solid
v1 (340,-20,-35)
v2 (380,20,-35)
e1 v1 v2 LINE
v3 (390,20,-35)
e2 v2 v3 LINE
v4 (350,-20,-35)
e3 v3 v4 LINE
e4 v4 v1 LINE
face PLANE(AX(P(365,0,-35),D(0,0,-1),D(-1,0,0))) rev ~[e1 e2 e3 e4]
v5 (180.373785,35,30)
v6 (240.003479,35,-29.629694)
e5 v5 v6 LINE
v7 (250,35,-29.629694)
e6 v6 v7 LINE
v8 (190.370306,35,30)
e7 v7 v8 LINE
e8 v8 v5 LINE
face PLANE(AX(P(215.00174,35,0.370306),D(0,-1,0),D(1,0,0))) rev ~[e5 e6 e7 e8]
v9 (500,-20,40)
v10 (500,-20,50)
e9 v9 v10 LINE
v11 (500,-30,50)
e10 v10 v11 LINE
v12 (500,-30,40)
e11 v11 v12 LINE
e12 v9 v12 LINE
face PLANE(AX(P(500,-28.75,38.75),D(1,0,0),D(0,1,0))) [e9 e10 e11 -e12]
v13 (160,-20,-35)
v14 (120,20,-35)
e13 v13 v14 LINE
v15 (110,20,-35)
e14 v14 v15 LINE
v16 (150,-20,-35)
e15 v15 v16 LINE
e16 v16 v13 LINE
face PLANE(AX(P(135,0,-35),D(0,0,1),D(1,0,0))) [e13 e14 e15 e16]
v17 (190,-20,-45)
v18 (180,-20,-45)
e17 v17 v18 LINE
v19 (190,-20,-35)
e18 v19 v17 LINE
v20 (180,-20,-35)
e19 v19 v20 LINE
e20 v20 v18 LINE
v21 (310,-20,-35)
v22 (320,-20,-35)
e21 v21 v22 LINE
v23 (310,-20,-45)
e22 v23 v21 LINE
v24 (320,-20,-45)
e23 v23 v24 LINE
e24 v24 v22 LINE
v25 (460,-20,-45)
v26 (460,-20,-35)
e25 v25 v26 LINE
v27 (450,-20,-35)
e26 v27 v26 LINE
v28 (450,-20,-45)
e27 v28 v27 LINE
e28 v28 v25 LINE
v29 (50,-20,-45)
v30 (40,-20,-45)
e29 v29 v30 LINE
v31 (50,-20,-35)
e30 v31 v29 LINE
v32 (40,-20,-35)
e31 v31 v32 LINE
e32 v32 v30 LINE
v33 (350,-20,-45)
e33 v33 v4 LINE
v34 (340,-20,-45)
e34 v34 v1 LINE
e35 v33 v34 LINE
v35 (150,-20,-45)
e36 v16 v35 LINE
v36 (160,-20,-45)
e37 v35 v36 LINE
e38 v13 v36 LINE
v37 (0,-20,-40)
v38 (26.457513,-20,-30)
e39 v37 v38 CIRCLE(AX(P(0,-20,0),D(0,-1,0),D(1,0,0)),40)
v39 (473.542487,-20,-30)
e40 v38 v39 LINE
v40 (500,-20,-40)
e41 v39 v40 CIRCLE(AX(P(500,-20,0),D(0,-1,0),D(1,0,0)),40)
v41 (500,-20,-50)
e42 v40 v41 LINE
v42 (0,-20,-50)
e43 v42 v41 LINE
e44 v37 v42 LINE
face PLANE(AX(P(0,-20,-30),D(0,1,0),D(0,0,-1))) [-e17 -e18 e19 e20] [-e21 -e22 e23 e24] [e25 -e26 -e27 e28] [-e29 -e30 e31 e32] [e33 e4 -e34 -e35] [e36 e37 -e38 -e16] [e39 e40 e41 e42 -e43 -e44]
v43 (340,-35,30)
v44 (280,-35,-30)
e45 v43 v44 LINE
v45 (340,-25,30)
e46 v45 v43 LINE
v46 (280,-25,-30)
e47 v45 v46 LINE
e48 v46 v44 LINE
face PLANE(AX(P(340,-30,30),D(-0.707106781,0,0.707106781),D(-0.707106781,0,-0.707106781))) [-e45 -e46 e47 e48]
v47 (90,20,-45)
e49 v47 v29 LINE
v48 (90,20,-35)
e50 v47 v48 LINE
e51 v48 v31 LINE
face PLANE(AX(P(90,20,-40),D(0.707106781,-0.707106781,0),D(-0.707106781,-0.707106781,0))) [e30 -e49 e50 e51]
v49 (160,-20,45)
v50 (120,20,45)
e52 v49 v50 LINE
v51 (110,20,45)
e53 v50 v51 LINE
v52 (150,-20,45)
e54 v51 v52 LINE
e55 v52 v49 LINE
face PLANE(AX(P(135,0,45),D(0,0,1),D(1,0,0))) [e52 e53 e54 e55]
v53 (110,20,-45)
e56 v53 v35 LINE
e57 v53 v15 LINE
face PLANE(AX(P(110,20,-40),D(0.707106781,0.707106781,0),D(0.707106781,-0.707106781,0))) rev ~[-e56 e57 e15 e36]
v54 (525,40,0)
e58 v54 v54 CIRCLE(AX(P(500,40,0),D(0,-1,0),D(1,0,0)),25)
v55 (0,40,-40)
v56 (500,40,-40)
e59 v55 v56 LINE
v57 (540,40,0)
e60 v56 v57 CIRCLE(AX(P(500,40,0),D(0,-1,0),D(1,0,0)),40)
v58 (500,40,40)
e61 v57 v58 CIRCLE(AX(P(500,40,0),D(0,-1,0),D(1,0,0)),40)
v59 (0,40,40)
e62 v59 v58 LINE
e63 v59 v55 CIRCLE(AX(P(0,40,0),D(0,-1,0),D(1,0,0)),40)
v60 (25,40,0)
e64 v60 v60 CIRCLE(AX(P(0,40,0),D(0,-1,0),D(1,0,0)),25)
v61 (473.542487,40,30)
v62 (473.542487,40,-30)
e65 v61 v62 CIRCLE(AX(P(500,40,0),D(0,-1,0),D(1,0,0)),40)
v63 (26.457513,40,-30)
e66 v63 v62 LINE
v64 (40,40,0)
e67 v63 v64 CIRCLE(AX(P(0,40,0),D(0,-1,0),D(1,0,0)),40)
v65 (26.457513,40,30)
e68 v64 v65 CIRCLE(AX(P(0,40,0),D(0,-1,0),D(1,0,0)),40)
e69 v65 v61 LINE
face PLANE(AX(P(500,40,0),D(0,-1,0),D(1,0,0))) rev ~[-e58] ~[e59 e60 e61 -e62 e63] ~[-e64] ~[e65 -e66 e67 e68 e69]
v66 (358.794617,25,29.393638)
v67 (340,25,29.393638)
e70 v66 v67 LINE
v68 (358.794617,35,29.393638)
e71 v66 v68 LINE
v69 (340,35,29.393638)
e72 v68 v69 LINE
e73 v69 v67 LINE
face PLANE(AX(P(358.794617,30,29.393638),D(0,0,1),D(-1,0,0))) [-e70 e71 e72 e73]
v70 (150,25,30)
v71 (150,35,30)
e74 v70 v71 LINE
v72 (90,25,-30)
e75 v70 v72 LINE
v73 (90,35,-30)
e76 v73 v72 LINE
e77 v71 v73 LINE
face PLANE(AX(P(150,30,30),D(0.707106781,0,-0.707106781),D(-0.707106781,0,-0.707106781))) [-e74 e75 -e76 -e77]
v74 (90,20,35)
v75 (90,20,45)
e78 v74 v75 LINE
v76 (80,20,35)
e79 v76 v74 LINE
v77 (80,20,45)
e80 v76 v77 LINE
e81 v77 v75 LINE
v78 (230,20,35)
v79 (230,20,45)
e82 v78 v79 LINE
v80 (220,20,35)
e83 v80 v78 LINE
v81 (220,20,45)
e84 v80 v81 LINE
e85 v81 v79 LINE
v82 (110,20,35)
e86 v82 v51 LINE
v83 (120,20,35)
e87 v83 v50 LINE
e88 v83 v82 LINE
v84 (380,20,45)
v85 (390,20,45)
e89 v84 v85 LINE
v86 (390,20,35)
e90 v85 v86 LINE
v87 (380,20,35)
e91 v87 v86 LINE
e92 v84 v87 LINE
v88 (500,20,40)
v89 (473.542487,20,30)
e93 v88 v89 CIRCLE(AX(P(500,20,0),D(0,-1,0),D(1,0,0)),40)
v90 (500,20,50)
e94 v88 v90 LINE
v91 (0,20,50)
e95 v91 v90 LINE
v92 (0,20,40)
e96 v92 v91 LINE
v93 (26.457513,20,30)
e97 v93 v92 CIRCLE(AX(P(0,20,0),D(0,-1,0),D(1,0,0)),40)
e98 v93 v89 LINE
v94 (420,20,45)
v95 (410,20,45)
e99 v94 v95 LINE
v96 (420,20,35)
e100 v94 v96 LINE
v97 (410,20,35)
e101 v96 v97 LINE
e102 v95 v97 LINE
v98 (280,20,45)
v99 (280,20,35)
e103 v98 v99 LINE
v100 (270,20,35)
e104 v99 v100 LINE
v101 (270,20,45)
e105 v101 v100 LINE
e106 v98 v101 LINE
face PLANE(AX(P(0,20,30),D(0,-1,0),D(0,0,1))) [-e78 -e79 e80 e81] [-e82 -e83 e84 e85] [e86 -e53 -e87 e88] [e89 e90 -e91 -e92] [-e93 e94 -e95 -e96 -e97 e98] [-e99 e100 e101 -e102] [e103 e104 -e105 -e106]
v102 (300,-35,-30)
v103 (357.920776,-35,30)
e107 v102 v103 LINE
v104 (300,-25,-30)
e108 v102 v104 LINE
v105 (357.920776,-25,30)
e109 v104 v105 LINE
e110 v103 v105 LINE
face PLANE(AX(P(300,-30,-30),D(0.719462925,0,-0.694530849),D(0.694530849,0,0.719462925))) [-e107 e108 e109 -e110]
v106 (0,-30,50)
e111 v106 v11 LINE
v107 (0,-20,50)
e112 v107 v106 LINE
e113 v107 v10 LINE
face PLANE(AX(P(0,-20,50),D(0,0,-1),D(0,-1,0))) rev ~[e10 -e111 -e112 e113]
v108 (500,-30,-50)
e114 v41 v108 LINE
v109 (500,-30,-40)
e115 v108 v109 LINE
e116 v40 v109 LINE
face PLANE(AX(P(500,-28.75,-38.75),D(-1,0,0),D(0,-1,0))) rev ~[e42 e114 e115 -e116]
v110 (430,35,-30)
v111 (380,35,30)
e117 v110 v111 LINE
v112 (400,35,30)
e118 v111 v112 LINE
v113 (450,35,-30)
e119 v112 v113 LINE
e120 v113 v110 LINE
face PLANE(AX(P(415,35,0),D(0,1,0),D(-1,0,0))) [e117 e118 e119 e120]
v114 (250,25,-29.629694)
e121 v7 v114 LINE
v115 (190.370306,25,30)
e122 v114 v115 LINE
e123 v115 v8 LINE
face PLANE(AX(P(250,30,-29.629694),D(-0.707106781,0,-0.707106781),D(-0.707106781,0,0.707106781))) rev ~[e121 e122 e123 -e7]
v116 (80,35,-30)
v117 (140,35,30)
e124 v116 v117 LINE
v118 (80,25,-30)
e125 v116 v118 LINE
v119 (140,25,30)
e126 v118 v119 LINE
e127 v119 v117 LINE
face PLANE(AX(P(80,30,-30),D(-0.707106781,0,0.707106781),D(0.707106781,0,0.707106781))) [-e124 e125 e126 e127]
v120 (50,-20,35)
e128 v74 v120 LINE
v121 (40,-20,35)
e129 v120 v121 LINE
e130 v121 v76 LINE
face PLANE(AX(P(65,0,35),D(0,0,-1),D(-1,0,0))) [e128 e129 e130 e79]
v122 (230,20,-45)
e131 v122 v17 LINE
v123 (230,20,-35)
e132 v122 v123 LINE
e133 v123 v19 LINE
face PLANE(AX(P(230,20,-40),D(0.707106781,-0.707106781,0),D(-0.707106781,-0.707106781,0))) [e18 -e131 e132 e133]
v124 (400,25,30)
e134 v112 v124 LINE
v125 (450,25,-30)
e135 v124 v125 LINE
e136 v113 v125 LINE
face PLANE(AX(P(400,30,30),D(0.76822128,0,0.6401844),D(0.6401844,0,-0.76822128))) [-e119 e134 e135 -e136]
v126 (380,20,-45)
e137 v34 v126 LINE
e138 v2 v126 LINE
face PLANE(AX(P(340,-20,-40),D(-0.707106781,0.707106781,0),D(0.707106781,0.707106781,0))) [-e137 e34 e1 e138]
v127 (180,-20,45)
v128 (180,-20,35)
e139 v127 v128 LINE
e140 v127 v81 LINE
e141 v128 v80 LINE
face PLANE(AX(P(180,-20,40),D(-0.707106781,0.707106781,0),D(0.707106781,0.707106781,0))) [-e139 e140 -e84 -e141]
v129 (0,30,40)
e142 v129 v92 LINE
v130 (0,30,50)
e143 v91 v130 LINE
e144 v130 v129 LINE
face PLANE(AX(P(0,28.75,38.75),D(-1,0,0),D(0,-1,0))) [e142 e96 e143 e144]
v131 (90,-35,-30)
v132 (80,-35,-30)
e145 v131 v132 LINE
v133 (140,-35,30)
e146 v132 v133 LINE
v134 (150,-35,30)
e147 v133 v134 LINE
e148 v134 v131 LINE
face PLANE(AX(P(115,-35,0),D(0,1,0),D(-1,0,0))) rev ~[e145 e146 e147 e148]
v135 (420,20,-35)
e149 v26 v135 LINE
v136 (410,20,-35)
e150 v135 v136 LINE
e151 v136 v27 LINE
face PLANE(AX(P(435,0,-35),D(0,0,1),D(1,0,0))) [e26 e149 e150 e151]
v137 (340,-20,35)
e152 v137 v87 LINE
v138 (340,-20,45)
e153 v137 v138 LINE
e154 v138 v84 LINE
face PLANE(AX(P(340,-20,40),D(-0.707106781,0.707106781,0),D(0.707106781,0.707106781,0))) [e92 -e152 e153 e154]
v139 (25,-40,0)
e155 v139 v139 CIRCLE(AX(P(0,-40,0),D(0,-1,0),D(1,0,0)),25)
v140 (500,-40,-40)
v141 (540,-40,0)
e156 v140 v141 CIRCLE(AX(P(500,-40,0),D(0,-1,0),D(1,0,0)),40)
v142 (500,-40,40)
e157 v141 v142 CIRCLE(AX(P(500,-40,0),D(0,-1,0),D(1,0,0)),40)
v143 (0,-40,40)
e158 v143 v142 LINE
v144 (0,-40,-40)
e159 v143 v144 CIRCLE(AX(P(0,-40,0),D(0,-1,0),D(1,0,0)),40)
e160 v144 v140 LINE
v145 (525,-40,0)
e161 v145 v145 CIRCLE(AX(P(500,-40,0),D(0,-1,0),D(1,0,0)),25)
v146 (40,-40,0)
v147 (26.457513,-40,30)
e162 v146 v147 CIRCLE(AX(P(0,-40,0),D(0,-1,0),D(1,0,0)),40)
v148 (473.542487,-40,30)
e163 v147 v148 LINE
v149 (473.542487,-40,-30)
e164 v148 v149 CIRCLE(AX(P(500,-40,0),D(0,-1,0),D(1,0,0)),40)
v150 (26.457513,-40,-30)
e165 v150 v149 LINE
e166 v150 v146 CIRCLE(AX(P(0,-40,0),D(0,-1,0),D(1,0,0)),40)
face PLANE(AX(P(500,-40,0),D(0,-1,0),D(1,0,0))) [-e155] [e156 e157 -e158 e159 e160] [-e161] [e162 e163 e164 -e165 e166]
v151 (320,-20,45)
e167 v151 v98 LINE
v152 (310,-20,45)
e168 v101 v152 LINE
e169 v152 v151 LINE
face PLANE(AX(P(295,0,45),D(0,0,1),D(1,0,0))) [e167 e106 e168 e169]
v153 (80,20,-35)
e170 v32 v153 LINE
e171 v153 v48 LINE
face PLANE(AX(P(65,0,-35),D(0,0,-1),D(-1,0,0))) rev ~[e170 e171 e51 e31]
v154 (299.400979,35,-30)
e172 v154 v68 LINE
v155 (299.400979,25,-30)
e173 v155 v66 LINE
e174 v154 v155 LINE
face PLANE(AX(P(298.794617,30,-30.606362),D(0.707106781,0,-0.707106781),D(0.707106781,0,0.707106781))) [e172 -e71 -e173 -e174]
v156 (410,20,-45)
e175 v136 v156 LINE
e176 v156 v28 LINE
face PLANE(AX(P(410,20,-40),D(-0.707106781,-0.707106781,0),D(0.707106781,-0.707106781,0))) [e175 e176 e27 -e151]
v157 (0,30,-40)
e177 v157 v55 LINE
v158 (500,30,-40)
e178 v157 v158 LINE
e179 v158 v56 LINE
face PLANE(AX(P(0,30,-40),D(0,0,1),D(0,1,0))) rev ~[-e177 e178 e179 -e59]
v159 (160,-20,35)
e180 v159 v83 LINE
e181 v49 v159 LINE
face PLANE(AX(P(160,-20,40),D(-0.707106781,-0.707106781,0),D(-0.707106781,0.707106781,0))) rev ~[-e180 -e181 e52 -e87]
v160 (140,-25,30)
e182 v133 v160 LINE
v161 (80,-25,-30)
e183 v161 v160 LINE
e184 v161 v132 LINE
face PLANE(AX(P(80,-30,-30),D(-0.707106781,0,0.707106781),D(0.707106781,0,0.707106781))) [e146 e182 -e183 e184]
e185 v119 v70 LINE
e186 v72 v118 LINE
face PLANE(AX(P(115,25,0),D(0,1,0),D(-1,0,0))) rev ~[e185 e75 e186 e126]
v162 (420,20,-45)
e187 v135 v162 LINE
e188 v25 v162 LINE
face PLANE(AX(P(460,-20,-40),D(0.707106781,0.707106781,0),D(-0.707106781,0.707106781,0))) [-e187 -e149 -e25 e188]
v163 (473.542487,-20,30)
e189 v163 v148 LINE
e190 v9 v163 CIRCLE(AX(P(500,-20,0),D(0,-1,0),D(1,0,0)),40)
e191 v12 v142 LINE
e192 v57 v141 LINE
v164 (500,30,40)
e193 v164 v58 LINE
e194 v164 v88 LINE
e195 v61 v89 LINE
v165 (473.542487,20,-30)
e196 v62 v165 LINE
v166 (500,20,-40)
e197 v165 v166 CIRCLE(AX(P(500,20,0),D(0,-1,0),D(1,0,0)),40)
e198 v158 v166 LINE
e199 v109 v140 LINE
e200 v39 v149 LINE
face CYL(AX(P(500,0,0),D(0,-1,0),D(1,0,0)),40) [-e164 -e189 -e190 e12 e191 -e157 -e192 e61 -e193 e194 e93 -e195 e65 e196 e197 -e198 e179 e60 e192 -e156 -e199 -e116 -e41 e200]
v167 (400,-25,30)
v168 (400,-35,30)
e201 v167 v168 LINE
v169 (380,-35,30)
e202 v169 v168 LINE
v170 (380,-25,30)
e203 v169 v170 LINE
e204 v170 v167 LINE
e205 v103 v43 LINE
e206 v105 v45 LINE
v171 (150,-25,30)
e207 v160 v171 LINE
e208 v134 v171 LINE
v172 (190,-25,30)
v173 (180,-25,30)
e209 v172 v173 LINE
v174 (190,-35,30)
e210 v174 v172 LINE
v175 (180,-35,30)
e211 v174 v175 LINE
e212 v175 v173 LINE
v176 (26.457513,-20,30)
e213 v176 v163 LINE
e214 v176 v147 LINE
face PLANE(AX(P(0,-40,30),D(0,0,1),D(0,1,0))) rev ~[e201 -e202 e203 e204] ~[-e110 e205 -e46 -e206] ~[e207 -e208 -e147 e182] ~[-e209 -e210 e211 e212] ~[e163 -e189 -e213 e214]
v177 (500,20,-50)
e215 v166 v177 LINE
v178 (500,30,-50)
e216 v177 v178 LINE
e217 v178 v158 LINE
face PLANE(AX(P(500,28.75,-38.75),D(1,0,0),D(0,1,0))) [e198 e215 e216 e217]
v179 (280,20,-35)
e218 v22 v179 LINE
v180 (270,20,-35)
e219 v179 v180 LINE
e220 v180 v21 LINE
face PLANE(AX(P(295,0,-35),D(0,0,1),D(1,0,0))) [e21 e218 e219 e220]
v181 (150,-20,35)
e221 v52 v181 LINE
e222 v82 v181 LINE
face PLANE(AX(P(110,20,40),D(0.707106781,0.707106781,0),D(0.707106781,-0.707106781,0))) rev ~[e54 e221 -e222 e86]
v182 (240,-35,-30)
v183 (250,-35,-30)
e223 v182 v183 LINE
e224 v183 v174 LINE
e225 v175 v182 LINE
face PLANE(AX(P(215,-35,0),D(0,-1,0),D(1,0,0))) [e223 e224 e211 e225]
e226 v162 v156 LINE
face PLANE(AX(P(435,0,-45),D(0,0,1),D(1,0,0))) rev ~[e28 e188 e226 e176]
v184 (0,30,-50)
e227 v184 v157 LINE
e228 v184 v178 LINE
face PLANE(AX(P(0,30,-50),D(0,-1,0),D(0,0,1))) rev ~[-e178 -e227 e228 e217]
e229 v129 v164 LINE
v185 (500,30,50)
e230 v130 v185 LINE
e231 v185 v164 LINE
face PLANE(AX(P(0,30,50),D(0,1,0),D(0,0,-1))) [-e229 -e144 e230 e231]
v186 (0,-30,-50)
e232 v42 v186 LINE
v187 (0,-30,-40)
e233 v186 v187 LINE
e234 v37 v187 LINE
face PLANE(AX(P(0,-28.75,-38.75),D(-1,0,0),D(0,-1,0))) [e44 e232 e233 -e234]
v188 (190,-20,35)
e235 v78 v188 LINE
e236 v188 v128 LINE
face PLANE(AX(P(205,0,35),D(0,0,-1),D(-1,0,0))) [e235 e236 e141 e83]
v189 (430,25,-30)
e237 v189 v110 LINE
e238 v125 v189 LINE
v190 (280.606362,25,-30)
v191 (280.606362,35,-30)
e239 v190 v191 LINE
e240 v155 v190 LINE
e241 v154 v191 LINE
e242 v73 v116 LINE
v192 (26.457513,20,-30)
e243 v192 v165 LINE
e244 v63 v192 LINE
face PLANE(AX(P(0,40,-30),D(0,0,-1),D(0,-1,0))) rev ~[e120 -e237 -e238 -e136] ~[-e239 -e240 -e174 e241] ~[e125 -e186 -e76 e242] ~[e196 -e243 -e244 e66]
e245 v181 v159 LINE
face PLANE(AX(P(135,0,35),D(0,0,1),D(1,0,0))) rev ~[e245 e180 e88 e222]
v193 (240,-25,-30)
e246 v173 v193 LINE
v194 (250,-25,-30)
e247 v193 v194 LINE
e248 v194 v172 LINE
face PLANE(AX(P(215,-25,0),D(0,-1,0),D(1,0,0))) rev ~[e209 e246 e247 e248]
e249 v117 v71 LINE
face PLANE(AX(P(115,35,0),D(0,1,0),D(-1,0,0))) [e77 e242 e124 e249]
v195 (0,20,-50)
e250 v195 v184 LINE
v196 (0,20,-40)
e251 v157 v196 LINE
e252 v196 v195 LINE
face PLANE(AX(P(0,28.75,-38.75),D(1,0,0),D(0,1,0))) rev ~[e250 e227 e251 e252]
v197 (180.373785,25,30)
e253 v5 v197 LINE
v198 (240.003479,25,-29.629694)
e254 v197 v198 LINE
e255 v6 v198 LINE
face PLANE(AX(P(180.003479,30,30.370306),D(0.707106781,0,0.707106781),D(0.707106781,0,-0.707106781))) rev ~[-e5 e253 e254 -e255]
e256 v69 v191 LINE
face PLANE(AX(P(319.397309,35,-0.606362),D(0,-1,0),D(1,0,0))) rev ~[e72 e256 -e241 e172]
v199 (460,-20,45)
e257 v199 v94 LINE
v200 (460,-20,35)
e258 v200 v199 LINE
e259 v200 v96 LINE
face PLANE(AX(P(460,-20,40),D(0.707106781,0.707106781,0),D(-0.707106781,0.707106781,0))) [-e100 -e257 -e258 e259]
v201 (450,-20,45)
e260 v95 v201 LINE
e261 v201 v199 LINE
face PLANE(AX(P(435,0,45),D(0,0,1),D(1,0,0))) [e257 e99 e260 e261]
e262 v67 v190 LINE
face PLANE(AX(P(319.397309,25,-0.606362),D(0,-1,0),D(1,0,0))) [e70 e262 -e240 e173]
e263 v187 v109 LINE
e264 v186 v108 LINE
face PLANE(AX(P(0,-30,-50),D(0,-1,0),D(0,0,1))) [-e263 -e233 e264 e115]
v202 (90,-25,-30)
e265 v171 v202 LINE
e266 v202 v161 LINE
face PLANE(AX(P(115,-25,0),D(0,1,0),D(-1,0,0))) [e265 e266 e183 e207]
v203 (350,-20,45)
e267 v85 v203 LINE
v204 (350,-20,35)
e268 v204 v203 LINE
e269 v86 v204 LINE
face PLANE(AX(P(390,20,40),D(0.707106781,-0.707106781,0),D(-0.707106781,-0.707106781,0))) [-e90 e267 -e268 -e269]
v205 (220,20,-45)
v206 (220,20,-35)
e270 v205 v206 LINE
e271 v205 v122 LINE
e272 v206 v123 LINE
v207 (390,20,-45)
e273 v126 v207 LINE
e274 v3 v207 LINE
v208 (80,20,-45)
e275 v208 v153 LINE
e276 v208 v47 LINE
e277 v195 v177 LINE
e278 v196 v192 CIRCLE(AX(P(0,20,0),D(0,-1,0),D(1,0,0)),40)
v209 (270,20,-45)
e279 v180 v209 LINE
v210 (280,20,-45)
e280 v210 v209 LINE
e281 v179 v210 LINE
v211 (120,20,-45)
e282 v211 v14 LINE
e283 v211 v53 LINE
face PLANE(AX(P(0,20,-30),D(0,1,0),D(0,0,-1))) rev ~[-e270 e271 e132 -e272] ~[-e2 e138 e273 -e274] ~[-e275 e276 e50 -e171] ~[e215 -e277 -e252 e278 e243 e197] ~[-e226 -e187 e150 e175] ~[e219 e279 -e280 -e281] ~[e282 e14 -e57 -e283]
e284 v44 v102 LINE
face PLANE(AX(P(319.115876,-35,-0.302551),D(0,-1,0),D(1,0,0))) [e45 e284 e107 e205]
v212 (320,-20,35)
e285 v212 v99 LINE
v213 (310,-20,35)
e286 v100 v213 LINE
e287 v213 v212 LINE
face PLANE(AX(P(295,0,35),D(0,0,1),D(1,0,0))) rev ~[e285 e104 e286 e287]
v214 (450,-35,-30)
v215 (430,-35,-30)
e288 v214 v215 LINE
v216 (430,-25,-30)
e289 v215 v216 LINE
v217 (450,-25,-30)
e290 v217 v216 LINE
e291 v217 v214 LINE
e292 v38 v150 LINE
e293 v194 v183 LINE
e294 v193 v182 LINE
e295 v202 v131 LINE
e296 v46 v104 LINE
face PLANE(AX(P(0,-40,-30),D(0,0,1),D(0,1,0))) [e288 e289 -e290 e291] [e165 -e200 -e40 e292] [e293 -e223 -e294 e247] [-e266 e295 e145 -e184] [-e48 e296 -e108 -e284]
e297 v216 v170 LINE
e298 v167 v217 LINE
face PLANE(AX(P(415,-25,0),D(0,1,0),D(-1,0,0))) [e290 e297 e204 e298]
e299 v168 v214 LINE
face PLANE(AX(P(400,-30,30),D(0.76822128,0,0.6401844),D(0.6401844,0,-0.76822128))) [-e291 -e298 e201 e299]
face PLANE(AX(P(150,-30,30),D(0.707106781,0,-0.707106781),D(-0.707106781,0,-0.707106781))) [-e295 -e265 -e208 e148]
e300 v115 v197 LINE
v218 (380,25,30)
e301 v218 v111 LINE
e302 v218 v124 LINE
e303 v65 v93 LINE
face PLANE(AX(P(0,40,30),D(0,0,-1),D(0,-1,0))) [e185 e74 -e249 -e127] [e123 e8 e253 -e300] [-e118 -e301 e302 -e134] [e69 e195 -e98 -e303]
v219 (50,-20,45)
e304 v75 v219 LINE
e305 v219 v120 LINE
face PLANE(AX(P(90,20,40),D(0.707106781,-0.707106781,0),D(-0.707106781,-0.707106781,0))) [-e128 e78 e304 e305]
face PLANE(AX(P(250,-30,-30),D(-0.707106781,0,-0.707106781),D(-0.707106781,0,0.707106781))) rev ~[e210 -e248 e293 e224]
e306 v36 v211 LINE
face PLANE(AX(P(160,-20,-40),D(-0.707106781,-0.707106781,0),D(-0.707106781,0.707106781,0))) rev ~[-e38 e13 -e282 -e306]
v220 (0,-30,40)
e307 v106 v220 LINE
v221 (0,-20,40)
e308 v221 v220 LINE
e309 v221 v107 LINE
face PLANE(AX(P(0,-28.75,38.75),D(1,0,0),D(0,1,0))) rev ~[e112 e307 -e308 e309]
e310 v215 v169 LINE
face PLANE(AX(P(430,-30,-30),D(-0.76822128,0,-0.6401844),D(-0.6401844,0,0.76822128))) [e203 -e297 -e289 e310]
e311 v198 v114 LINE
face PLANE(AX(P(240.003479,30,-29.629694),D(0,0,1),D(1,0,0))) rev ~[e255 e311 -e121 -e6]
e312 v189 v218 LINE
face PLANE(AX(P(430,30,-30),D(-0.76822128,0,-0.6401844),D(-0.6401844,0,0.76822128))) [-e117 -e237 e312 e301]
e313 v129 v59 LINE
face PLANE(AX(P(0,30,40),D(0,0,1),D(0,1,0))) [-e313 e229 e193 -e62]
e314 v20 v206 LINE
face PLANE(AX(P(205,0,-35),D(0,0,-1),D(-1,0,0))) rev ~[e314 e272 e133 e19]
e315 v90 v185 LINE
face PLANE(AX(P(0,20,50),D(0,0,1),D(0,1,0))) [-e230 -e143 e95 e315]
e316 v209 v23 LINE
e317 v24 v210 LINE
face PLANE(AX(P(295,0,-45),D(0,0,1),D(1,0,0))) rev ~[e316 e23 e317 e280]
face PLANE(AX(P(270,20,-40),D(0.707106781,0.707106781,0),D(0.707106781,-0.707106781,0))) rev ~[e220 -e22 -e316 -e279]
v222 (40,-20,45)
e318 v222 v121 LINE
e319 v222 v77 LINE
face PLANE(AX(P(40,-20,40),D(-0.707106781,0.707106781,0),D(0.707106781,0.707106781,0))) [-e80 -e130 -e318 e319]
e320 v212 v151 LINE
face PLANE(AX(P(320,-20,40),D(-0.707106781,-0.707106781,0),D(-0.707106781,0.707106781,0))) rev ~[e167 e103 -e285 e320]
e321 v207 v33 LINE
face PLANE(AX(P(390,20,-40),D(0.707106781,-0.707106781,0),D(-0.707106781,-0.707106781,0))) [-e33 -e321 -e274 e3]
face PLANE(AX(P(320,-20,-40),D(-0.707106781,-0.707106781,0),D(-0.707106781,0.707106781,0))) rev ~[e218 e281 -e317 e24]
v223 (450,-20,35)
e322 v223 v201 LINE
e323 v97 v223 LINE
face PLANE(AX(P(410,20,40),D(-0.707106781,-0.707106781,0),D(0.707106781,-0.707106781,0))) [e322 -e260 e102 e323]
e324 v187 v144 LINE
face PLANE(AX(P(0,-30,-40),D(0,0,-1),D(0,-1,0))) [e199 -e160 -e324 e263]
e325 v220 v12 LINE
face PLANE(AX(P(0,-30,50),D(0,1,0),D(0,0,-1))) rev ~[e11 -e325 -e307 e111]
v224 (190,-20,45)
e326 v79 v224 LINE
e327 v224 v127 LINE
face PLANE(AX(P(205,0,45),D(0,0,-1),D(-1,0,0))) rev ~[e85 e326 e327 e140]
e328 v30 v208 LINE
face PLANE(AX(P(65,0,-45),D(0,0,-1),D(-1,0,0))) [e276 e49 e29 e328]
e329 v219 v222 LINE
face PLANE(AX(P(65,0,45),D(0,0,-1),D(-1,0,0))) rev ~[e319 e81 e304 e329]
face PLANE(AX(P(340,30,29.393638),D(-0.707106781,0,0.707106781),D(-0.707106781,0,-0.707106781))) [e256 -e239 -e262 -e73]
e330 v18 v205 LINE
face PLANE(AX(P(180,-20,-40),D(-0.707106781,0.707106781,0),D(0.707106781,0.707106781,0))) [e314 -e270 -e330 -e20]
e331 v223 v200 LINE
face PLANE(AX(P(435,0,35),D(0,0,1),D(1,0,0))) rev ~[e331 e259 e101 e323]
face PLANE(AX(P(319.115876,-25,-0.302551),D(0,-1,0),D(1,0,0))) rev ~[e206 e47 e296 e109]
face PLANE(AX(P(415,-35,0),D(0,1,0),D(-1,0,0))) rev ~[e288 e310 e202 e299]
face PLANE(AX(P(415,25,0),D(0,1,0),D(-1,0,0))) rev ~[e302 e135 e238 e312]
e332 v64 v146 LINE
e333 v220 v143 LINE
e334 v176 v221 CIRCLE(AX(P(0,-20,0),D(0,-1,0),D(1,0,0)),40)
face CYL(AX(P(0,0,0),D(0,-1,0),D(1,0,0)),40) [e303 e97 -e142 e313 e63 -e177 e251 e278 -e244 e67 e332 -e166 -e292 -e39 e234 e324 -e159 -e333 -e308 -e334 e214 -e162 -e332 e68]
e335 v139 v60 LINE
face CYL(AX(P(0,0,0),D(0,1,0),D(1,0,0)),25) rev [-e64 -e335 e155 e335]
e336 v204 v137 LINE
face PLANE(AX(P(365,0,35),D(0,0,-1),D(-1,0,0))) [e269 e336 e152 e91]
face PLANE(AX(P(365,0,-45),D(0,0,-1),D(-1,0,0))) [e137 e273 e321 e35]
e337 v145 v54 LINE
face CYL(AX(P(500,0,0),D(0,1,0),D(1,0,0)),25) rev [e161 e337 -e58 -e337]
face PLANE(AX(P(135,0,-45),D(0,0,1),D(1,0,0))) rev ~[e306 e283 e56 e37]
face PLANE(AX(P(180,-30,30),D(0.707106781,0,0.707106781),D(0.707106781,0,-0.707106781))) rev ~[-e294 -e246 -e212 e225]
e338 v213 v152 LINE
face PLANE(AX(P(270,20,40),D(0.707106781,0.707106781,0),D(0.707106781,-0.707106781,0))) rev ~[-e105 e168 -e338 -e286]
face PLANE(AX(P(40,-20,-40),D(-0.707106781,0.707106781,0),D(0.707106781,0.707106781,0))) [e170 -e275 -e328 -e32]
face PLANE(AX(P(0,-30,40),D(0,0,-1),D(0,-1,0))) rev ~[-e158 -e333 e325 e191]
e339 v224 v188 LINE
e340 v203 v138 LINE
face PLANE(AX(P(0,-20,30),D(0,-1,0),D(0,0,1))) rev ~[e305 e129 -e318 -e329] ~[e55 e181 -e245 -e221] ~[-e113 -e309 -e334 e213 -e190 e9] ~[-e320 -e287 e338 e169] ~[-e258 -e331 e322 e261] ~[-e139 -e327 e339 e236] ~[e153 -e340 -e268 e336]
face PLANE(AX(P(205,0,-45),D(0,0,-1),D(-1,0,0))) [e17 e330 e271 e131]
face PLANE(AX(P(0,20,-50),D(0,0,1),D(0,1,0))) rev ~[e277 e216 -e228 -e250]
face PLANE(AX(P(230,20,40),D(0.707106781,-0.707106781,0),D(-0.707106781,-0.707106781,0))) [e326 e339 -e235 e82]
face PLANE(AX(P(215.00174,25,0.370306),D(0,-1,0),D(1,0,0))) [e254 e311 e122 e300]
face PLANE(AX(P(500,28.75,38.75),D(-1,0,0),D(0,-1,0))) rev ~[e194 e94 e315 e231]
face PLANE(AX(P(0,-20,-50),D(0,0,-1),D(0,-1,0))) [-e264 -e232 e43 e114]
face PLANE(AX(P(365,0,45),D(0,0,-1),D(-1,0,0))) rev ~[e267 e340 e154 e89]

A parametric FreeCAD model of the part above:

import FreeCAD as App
import Part
import Sketcher

V = App.Vector
Q = App.Units.Quantity

doc = App.newDocument("Part")
params = doc.addObject("Spreadsheet::Sheet", "Params")
for row, (alias, value) in enumerate([
    ("sketch1_diameter", "80 mm"),
    ("sketch1_diameter2", "50 mm"),
    ("pad1_length", "80 mm"),
    ("sketch2_width", "10 mm"),
    ("pad2_length", "500 mm"),
    ("sketch3_diameter", "80 mm"),
    ("sketch3_diameter2", "50 mm"),
    ("pad3_length", "80 mm"),
    ("sketch4_width", "10 mm"),
    ("sketch4_width2", "20 mm"),
    ("pad4_length", "10 mm"),
    ("sketch5_width", "10 mm"),
    ("sketch5_width2", "20 mm"),
    ("pad5_length", "10 mm"),
    ("sketch6_width", "10 mm"),
    ("pad6_length", "10 mm"),
    ("sketch7_width", "10 mm"),
    ("pad7_length", "10 mm"),
], start=1):
    params.set(f"A{row}", alias)
    params.set(f"B{row}", "=" + value)
    params.setAlias(f"B{row}", alias)

body = doc.addObject("PartDesign::Body", "Body")

# Sketch on XZ plane
sketch1 = body.newObject("Sketcher::SketchObject", "Sketch")
sketch1.AttachmentSupport = (doc.getObject("XZ_Plane"), [""])
sketch1.MapMode = "FlatFace"
sketch1.addGeometry([
    Part.Circle(V(0, 0, 0), V(0, 0, 1), 40),
    Part.Circle(V(0, 0, 0), V(0, 0, 1), 25),
], False)
sketch1.addConstraint([
    Sketcher.Constraint("Coincident", 0, 3, -1, 1),
    Sketcher.Constraint("Coincident", 1, 3, -1, 1),
    Sketcher.Constraint("Diameter", 0, Q("80 mm")),
    Sketcher.Constraint("Diameter", 1, Q("50 mm")),
])
sketch1.setExpression("Constraints[2]", "Params.sketch1_diameter")
sketch1.setExpression("Constraints[3]", "Params.sketch1_diameter2")
pad1 = body.newObject("PartDesign::Pad", "Pad")
pad1.Profile = sketch1
pad1.setExpression("Length", "Params.pad1_length")
pad1.Midplane = True

# Sketch on YZ plane
sketch2 = body.newObject("Sketcher::SketchObject", "Sketch001")
sketch2.AttachmentSupport = (doc.getObject("YZ_Plane"), [""])
sketch2.MapMode = "FlatFace"
sketch2.addGeometry([
    Part.LineSegment(V(-30, 50, 0), V(-30, 40, 0)),  # 0
    Part.LineSegment(V(-30, 40, 0), V(-40, 40, 0)),  # 1
    Part.LineSegment(V(-40, 40, 0), V(-40, 30, 0)),  # 2
    Part.LineSegment(V(-40, 30, 0), V(-20, 30, 0)),  # 3
    Part.LineSegment(V(-20, 30, 0), V(-20, 50, 0)),  # 4
    Part.LineSegment(V(-20, 50, 0), V(-30, 50, 0)),  # 5
    Part.LineSegment(V(30, 40, 0), V(30, 50, 0)),  # 6
    Part.LineSegment(V(30, 50, 0), V(20, 50, 0)),  # 7
    Part.LineSegment(V(20, 50, 0), V(20, 30, 0)),  # 8
    Part.LineSegment(V(20, 30, 0), V(40, 30, 0)),  # 9
    Part.LineSegment(V(40, 30, 0), V(40, 40, 0)),  # 10
    Part.LineSegment(V(40, 40, 0), V(30, 40, 0)),  # 11
    Part.LineSegment(V(-30, -40, 0), V(-30, -50, 0)),  # 12
    Part.LineSegment(V(-30, -50, 0), V(-20, -50, 0)),  # 13
    Part.LineSegment(V(-20, -50, 0), V(-20, -30, 0)),  # 14
    Part.LineSegment(V(-20, -30, 0), V(-40, -30, 0)),  # 15
    Part.LineSegment(V(-40, -30, 0), V(-40, -40, 0)),  # 16
    Part.LineSegment(V(-40, -40, 0), V(-30, -40, 0)),  # 17
    Part.LineSegment(V(30, -50, 0), V(30, -40, 0)),  # 18
    Part.LineSegment(V(30, -40, 0), V(40, -40, 0)),  # 19
    Part.LineSegment(V(40, -40, 0), V(40, -30, 0)),  # 20
    Part.LineSegment(V(40, -30, 0), V(20, -30, 0)),  # 21
    Part.LineSegment(V(20, -30, 0), V(20, -50, 0)),  # 22
    Part.LineSegment(V(20, -50, 0), V(30, -50, 0)),  # 23
], False)
sketch2.addConstraint([
    Sketcher.Constraint("Coincident", 0, 2, 1, 1),
    Sketcher.Constraint("Coincident", 1, 2, 2, 1),
    Sketcher.Constraint("Coincident", 2, 2, 3, 1),
    Sketcher.Constraint("Coincident", 3, 2, 4, 1),
    Sketcher.Constraint("Coincident", 4, 2, 5, 1),
    Sketcher.Constraint("Coincident", 5, 2, 0, 1),
    Sketcher.Constraint("Coincident", 6, 2, 7, 1),
    Sketcher.Constraint("Coincident", 7, 2, 8, 1),
    Sketcher.Constraint("Coincident", 8, 2, 9, 1),
    Sketcher.Constraint("Coincident", 9, 2, 10, 1),
    Sketcher.Constraint("Coincident", 10, 2, 11, 1),
    Sketcher.Constraint("Coincident", 11, 2, 6, 1),
    Sketcher.Constraint("Coincident", 12, 2, 13, 1),
    Sketcher.Constraint("Coincident", 13, 2, 14, 1),
    Sketcher.Constraint("Coincident", 14, 2, 15, 1),
    Sketcher.Constraint("Coincident", 15, 2, 16, 1),
    Sketcher.Constraint("Coincident", 16, 2, 17, 1),
    Sketcher.Constraint("Coincident", 17, 2, 12, 1),
    Sketcher.Constraint("Coincident", 18, 2, 19, 1),
    Sketcher.Constraint("Coincident", 19, 2, 20, 1),
    Sketcher.Constraint("Coincident", 20, 2, 21, 1),
    Sketcher.Constraint("Coincident", 21, 2, 22, 1),
    Sketcher.Constraint("Coincident", 22, 2, 23, 1),
    Sketcher.Constraint("Coincident", 23, 2, 18, 1),
    Sketcher.Constraint("Vertical", 0),
    Sketcher.Constraint("Horizontal", 1),
    Sketcher.Constraint("Vertical", 2),
    Sketcher.Constraint("Horizontal", 3),
    Sketcher.Constraint("Vertical", 4),
    Sketcher.Constraint("Horizontal", 5),
    Sketcher.Constraint("Vertical", 6),
    Sketcher.Constraint("Horizontal", 7),
    Sketcher.Constraint("Vertical", 8),
    Sketcher.Constraint("Horizontal", 9),
    Sketcher.Constraint("Vertical", 10),
    Sketcher.Constraint("Horizontal", 11),
    Sketcher.Constraint("Vertical", 12),
    Sketcher.Constraint("Horizontal", 13),
    Sketcher.Constraint("Vertical", 14),
    Sketcher.Constraint("Horizontal", 15),
    Sketcher.Constraint("Vertical", 16),
    Sketcher.Constraint("Horizontal", 17),
    Sketcher.Constraint("Vertical", 18),
    Sketcher.Constraint("Horizontal", 19),
    Sketcher.Constraint("Vertical", 20),
    Sketcher.Constraint("Horizontal", 21),
    Sketcher.Constraint("Vertical", 22),
    Sketcher.Constraint("Horizontal", 23),
    Sketcher.Constraint("Symmetric", 6, 2, 12, 2, -1, 1),
    Sketcher.Constraint("Symmetric", 8, 2, 14, 2, -1, 1),
    Sketcher.Constraint("Symmetric", 10, 2, 16, 2, -1, 1),
    Sketcher.Constraint("Symmetric", 0, 2, 18, 2, -1, 1),
    Sketcher.Constraint("Symmetric", 2, 2, 20, 2, -1, 1),
    Sketcher.Constraint("Symmetric", 4, 2, 22, 2, -1, 1),
    Sketcher.Constraint("Symmetric", 5, 2, 6, 2, -2),
    Sketcher.Constraint("Symmetric", 3, 2, 8, 2, -2),
    Sketcher.Constraint("Symmetric", 1, 2, 10, 2, -2),
    Sketcher.Constraint("Equal", 1, 5),
    Sketcher.Constraint("Equal", 23, 0),
    Sketcher.Constraint("Equal", 0, 2),
    Sketcher.Constraint("DistanceX", 1, 2, 1, 1, Q("10 mm")),
    Sketcher.Constraint("DistanceX", 0, 2, -1, 1, Q("30 mm")),
    Sketcher.Constraint("DistanceY", -1, 1, 0, 2, Q("40 mm")),
])
sketch2.setExpression("Constraints[60]", "Params.sketch2_width")
pad2 = body.newObject("PartDesign::Pad", "Pad001")
pad2.Profile = sketch2
pad2.setExpression("Length", "Params.pad2_length")

# Sketch on XZ plane
sketch3 = body.newObject("Sketcher::SketchObject", "Sketch002")
sketch3.AttachmentSupport = (doc.getObject("XZ_Plane"), [""])
sketch3.MapMode = "FlatFace"
sketch3.addGeometry([
    Part.Circle(V(500, 0, 0), V(0, 0, 1), 40),
    Part.Circle(V(500, 0, 0), V(0, 0, 1), 25),
], False)
sketch3.addConstraint([
    Sketcher.Constraint("Coincident", 1, 3, 0, 3),
    Sketcher.Constraint("PointOnObject", 0, 3, -1),
    Sketcher.Constraint("Diameter", 0, Q("80 mm")),
    Sketcher.Constraint("Diameter", 1, Q("50 mm")),
    Sketcher.Constraint("DistanceX", -1, 1, 0, 3, Q("500 mm")),
])
sketch3.setExpression("Constraints[2]", "Params.sketch3_diameter")
sketch3.setExpression("Constraints[3]", "Params.sketch3_diameter2")
pad3 = body.newObject("PartDesign::Pad", "Pad002")
pad3.Profile = sketch3
pad3.setExpression("Length", "Params.pad3_length")
pad3.Midplane = True

# Sketch on XZ plane
sketch4 = body.newObject("Sketcher::SketchObject", "Sketch003")
sketch4.AttachmentSupport = (doc.getObject("XZ_Plane"), [""])
sketch4.MapMode = "FlatFace"
sketch4.AttachmentOffset = App.Placement(V(0, 0, -30), App.Rotation())
sketch4.addGeometry([
    Part.LineSegment(V(140, 30, 0), V(80, -30, 0)),  # 0
    Part.LineSegment(V(80, -30, 0), V(90, -30, 0)),  # 1
    Part.LineSegment(V(90, -30, 0), V(150, 30, 0)),  # 2
    Part.LineSegment(V(150, 30, 0), V(140, 30, 0)),  # 3
    Part.LineSegment(V(430, -30, 0), V(450, -30, 0)),  # 4
    Part.LineSegment(V(450, -30, 0), V(400, 30, 0)),  # 5
    Part.LineSegment(V(400, 30, 0), V(380, 30, 0)),  # 6
    Part.LineSegment(V(380, 30, 0), V(430, -30, 0)),  # 7
    Part.LineSegment(V(180.003479, 30.370306, 0), V(240.003479, -29.629694, 0)),  # 8
    Part.LineSegment(V(240.003479, -29.629694, 0), V(250, -29.629694, 0)),  # 9
    Part.LineSegment(V(250, -29.629694, 0), V(190, 30.370306, 0)),  # 10
    Part.LineSegment(V(190, 30.370306, 0), V(180.003479, 30.370306, 0)),  # 11
    Part.LineSegment(V(358.794617, 29.393638, 0), V(340, 29.393638, 0)),  # 12
    Part.LineSegment(V(340, 29.393638, 0), V(280, -30.606362, 0)),  # 13
    Part.LineSegment(V(280, -30.606362, 0), V(298.794617, -30.606362, 0)),  # 14
    Part.LineSegment(V(298.794617, -30.606362, 0), V(358.794617, 29.393638, 0)),  # 15
], False)
sketch4.addConstraint([
    Sketcher.Constraint("Coincident", 0, 2, 1, 1),
    Sketcher.Constraint("Coincident", 1, 2, 2, 1),
    Sketcher.Constraint("Coincident", 2, 2, 3, 1),
    Sketcher.Constraint("Coincident", 3, 2, 0, 1),
    Sketcher.Constraint("Coincident", 4, 2, 5, 1),
    Sketcher.Constraint("Coincident", 5, 2, 6, 1),
    Sketcher.Constraint("Coincident", 6, 2, 7, 1),
    Sketcher.Constraint("Coincident", 7, 2, 4, 1),
    Sketcher.Constraint("Coincident", 8, 2, 9, 1),
    Sketcher.Constraint("Coincident", 9, 2, 10, 1),
    Sketcher.Constraint("Coincident", 10, 2, 11, 1),
    Sketcher.Constraint("Coincident", 11, 2, 8, 1),
    Sketcher.Constraint("Coincident", 12, 2, 13, 1),
    Sketcher.Constraint("Coincident", 13, 2, 14, 1),
    Sketcher.Constraint("Coincident", 14, 2, 15, 1),
    Sketcher.Constraint("Coincident", 15, 2, 12, 1),
    Sketcher.Constraint("Horizontal", 1),
    Sketcher.Constraint("Horizontal", 3),
    Sketcher.Constraint("Horizontal", 4),
    Sketcher.Constraint("Horizontal", 6),
    Sketcher.Constraint("Horizontal", 9),
    Sketcher.Constraint("Horizontal", 11),
    Sketcher.Constraint("Horizontal", 12),
    Sketcher.Constraint("Horizontal", 14),
    Sketcher.Constraint("Parallel", 0, 2),
    Sketcher.Constraint("Parallel", 5, 7),
    Sketcher.Constraint("Perpendicular", 2, 8),
    Sketcher.Constraint("Parallel", 8, 10),
    Sketcher.Constraint("Perpendicular", 10, 13),
    Sketcher.Constraint("Parallel", 13, 15),
    Sketcher.Constraint("Horizontal", 1, 2, 4, 2),
    Sketcher.Constraint("Horizontal", 3, 2, 5, 2),
    Sketcher.Constraint("Equal", 2, 8),
    Sketcher.Constraint("Equal", 10, 13),
    Sketcher.Constraint("DistanceX", 1, 1, 1, 2, Q("10 mm")),
    Sketcher.Constraint("DistanceX", 4, 1, 4, 2, Q("20 mm")),
    Sketcher.Constraint("Angle", 0, Q("-135 deg")),
    Sketcher.Constraint("DistanceX", -1, 1, 0, 2, Q("80 mm")),
    Sketcher.Constraint("DistanceY", 0, 2, -1, 1, Q("30 mm")),
    Sketcher.Constraint("DistanceX", -1, 1, 2, 2, Q("150 mm")),
    Sketcher.Constraint("DistanceX", -1, 1, 4, 2, Q("450 mm")),
    Sketcher.Constraint("DistanceX", -1, 1, 5, 2, Q("400 mm")),
    Sketcher.Constraint("DistanceX", -1, 1, 9, 2, Q("250 mm")),
    Sketcher.Constraint("DistanceX", -1, 1, 12, 2, Q("340 mm")),
    Sketcher.Constraint("DistanceX", 9, 1, 9, 2, Q("9.996521 mm")),
    Sketcher.Constraint("DistanceX", 12, 2, 12, 1, Q("18.794617 mm")),
    Sketcher.Constraint("DistanceY", 9, 2, 12, 2, Q("59.023332 mm")),
    Sketcher.Constraint("DistanceY", 8, 2, -1, 1, Q("29.629694 mm")),
])
sketch4.setExpression("Constraints[34]", "Params.sketch4_width")
sketch4.setExpression("Constraints[35]", "Params.sketch4_width2")
pad4 = body.newObject("PartDesign::Pad", "Pad003")
pad4.Profile = sketch4
pad4.setExpression("Length", "Params.pad4_length")
pad4.Midplane = True

# Sketch on XZ plane
sketch5 = body.newObject("Sketcher::SketchObject", "Sketch004")
sketch5.AttachmentSupport = (doc.getObject("XZ_Plane"), [""])
sketch5.MapMode = "FlatFace"
sketch5.AttachmentOffset = App.Placement(V(0, 0, 30), App.Rotation())
sketch5.addGeometry([
    Part.LineSegment(V(140, 30, 0), V(80, -30, 0)),  # 0
    Part.LineSegment(V(80, -30, 0), V(90, -30, 0)),  # 1
    Part.LineSegment(V(90, -30, 0), V(150, 30, 0)),  # 2
    Part.LineSegment(V(150, 30, 0), V(140, 30, 0)),  # 3
    Part.LineSegment(V(430, -30, 0), V(450, -30, 0)),  # 4
    Part.LineSegment(V(450, -30, 0), V(400, 30, 0)),  # 5
    Part.LineSegment(V(400, 30, 0), V(380, 30, 0)),  # 6
    Part.LineSegment(V(380, 30, 0), V(430, -30, 0)),  # 7
    Part.LineSegment(V(180, 30, 0), V(240, -30, 0)),  # 8
    Part.LineSegment(V(240, -30, 0), V(250, -30, 0)),  # 9
    Part.LineSegment(V(250, -30, 0), V(190, 30, 0)),  # 10
    Part.LineSegment(V(190, 30, 0), V(180, 30, 0)),  # 11
    Part.LineSegment(V(357.920776, 30, 0), V(340, 30, 0)),  # 12
    Part.LineSegment(V(340, 30, 0), V(280, -30, 0)),  # 13
    Part.LineSegment(V(280, -30, 0), V(300, -30, 0)),  # 14
    Part.LineSegment(V(300, -30, 0), V(357.920776, 30, 0)),  # 15
], False)
sketch5.addConstraint([
    Sketcher.Constraint("Coincident", 0, 2, 1, 1),
    Sketcher.Constraint("Coincident", 1, 2, 2, 1),
    Sketcher.Constraint("Coincident", 2, 2, 3, 1),
    Sketcher.Constraint("Coincident", 3, 2, 0, 1),
    Sketcher.Constraint("Coincident", 4, 2, 5, 1),
    Sketcher.Constraint("Coincident", 5, 2, 6, 1),
    Sketcher.Constraint("Coincident", 6, 2, 7, 1),
    Sketcher.Constraint("Coincident", 7, 2, 4, 1),
    Sketcher.Constraint("Coincident", 8, 2, 9, 1),
    Sketcher.Constraint("Coincident", 9, 2, 10, 1),
    Sketcher.Constraint("Coincident", 10, 2, 11, 1),
    Sketcher.Constraint("Coincident", 11, 2, 8, 1),
    Sketcher.Constraint("Coincident", 12, 2, 13, 1),
    Sketcher.Constraint("Coincident", 13, 2, 14, 1),
    Sketcher.Constraint("Coincident", 14, 2, 15, 1),
    Sketcher.Constraint("Coincident", 15, 2, 12, 1),
    Sketcher.Constraint("Horizontal", 1),
    Sketcher.Constraint("Horizontal", 3),
    Sketcher.Constraint("Horizontal", 4),
    Sketcher.Constraint("Horizontal", 6),
    Sketcher.Constraint("Horizontal", 9),
    Sketcher.Constraint("Horizontal", 11),
    Sketcher.Constraint("Horizontal", 12),
    Sketcher.Constraint("Horizontal", 14),
    Sketcher.Constraint("Parallel", 0, 2),
    Sketcher.Constraint("Parallel", 5, 7),
    Sketcher.Constraint("Perpendicular", 2, 8),
    Sketcher.Constraint("Parallel", 8, 10),
    Sketcher.Constraint("Perpendicular", 10, 13),
    Sketcher.Constraint("Horizontal", 1, 2, 4, 2),
    Sketcher.Constraint("Horizontal", 3, 2, 5, 2),
    Sketcher.Constraint("Horizontal", 7, 2, 8, 2),
    Sketcher.Constraint("Horizontal", 6, 2, 10, 2),
    Sketcher.Constraint("Horizontal", 11, 2, 12, 2),
    Sketcher.Constraint("Horizontal", 9, 2, 13, 2),
    Sketcher.Constraint("Equal", 3, 9),
    Sketcher.Constraint("Equal", 6, 14),
    Sketcher.Constraint("Equal", 2, 8),
    Sketcher.Constraint("DistanceX", 1, 1, 1, 2, Q("10 mm")),
    Sketcher.Constraint("DistanceX", 4, 1, 4, 2, Q("20 mm")),
    Sketcher.Constraint("DistanceX", -1, 1, 0, 2, Q("80 mm")),
    Sketcher.Constraint("DistanceY", 0, 2, -1, 1, Q("30 mm")),
    Sketcher.Constraint("DistanceX", -1, 1, 2, 2, Q("150 mm")),
    Sketcher.Constraint("DistanceX", -1, 1, 4, 2, Q("450 mm")),
    Sketcher.Constraint("DistanceX", -1, 1, 5, 2, Q("400 mm")),
    Sketcher.Constraint("DistanceX", -1, 1, 8, 2, Q("240 mm")),
    Sketcher.Constraint("DistanceX", -1, 1, 12, 2, Q("340 mm")),
    Sketcher.Constraint("Distance", 15, Q("83.395541 mm")),
])
sketch5.setExpression("Constraints[38]", "Params.sketch5_width")
sketch5.setExpression("Constraints[39]", "Params.sketch5_width2")
pad5 = body.newObject("PartDesign::Pad", "Pad004")
pad5.Profile = sketch5
pad5.setExpression("Length", "Params.pad5_length")
pad5.Midplane = True

# Sketch on XY plane
sketch6 = body.newObject("Sketcher::SketchObject", "Sketch005")
sketch6.AttachmentSupport = (doc.getObject("XY_Plane"), [""])
sketch6.MapMode = "FlatFace"
sketch6.AttachmentOffset = App.Placement(V(0, 0, -40), App.Rotation())
sketch6.addGeometry([
    Part.LineSegment(V(190, -20, 0), V(230, 20, 0)),  # 0
    Part.LineSegment(V(230, 20, 0), V(220, 20, 0)),  # 1
    Part.LineSegment(V(220, 20, 0), V(180, -20, 0)),  # 2
    Part.LineSegment(V(180, -20, 0), V(190, -20, 0)),  # 3
    Part.LineSegment(V(160, -20, 0), V(120, 20, 0)),  # 4
    Part.LineSegment(V(120, 20, 0), V(110, 20, 0)),  # 5
    Part.LineSegment(V(110, 20, 0), V(150, -20, 0)),  # 6
    Part.LineSegment(V(150, -20, 0), V(160, -20, 0)),  # 7
    Part.LineSegment(V(50, -20, 0), V(90, 20, 0)),  # 8
    Part.LineSegment(V(90, 20, 0), V(80, 20, 0)),  # 9
    Part.LineSegment(V(80, 20, 0), V(40, -20, 0)),  # 10
    Part.LineSegment(V(40, -20, 0), V(50, -20, 0)),  # 11
    Part.LineSegment(V(270, 20, 0), V(310, -20, 0)),  # 12
    Part.LineSegment(V(310, -20, 0), V(320, -20, 0)),  # 13
    Part.LineSegment(V(320, -20, 0), V(280, 20, 0)),  # 14
    Part.LineSegment(V(280, 20, 0), V(270, 20, 0)),  # 15
    Part.LineSegment(V(380, 20, 0), V(340, -20, 0)),  # 16
    Part.LineSegment(V(340, -20, 0), V(350, -20, 0)),  # 17
    Part.LineSegment(V(350, -20, 0), V(390, 20, 0)),  # 18
    Part.LineSegment(V(390, 20, 0), V(380, 20, 0)),  # 19
    Part.LineSegment(V(410, 20, 0), V(450, -20, 0)),  # 20
    Part.LineSegment(V(450, -20, 0), V(460, -20, 0)),  # 21
    Part.LineSegment(V(460, -20, 0), V(420, 20, 0)),  # 22
    Part.LineSegment(V(420, 20, 0), V(410, 20, 0)),  # 23
], False)
sketch6.addConstraint([
    Sketcher.Constraint("Coincident", 0, 2, 1, 1),
    Sketcher.Constraint("Coincident", 1, 2, 2, 1),
    Sketcher.Constraint("Coincident", 2, 2, 3, 1),
    Sketcher.Constraint("Coincident", 3, 2, 0, 1),
    Sketcher.Constraint("Coincident", 4, 2, 5, 1),
    Sketcher.Constraint("Coincident", 5, 2, 6, 1),
    Sketcher.Constraint("Coincident", 6, 2, 7, 1),
    Sketcher.Constraint("Coincident", 7, 2, 4, 1),
    Sketcher.Constraint("Coincident", 8, 2, 9, 1),
    Sketcher.Constraint("Coincident", 9, 2, 10, 1),
    Sketcher.Constraint("Coincident", 10, 2, 11, 1),
    Sketcher.Constraint("Coincident", 11, 2, 8, 1),
    Sketcher.Constraint("Coincident", 12, 2, 13, 1),
    Sketcher.Constraint("Coincident", 13, 2, 14, 1),
    Sketcher.Constraint("Coincident", 14, 2, 15, 1),
    Sketcher.Constraint("Coincident", 15, 2, 12, 1),
    Sketcher.Constraint("Coincident", 16, 2, 17, 1),
    Sketcher.Constraint("Coincident", 17, 2, 18, 1),
    Sketcher.Constraint("Coincident", 18, 2, 19, 1),
    Sketcher.Constraint("Coincident", 19, 2, 16, 1),
    Sketcher.Constraint("Coincident", 20, 2, 21, 1),
    Sketcher.Constraint("Coincident", 21, 2, 22, 1),
    Sketcher.Constraint("Coincident", 22, 2, 23, 1),
    Sketcher.Constraint("Coincident", 23, 2, 20, 1),
    Sketcher.Constraint("Horizontal", 1),
    Sketcher.Constraint("Horizontal", 3),
    Sketcher.Constraint("Horizontal", 5),
    Sketcher.Constraint("Horizontal", 7),
    Sketcher.Constraint("Horizontal", 9),
    Sketcher.Constraint("Horizontal", 11),
    Sketcher.Constraint("Horizontal", 13),
    Sketcher.Constraint("Horizontal", 15),
    Sketcher.Constraint("Horizontal", 17),
    Sketcher.Constraint("Horizontal", 19),
    Sketcher.Constraint("Horizontal", 21),
    Sketcher.Constraint("Horizontal", 23),
    Sketcher.Constraint("Parallel", 0, 2),
    Sketcher.Constraint("Perpendicular", 2, 4),
    Sketcher.Constraint("Parallel", 4, 6),
    Sketcher.Constraint("Perpendicular", 6, 8),
    Sketcher.Constraint("Parallel", 8, 10),
    Sketcher.Constraint("Perpendicular", 10, 12),
    Sketcher.Constraint("Parallel", 12, 14),
    Sketcher.Constraint("Perpendicular", 14, 16),
    Sketcher.Constraint("Parallel", 16, 18),
    Sketcher.Constraint("Perpendicular", 18, 20),
    Sketcher.Constraint("Parallel", 20, 22),
    Sketcher.Constraint("Horizontal", 1, 2, 4, 2),
    Sketcher.Constraint("Horizontal", 3, 2, 6, 2),
    Sketcher.Constraint("Horizontal", 5, 2, 8, 2),
    Sketcher.Constraint("Horizontal", 7, 2, 10, 2),
    Sketcher.Constraint("Horizontal", 11, 2, 12, 2),
    Sketcher.Constraint("Horizontal", 9, 2, 14, 2),
    Sketcher.Constraint("Horizontal", 13, 2, 16, 2),
    Sketcher.Constraint("Horizontal", 15, 2, 18, 2),
    Sketcher.Constraint("Horizontal", 17, 2, 20, 2),
    Sketcher.Constraint("Horizontal", 19, 2, 22, 2),
    Sketcher.Constraint("Equal", 3, 5),
    Sketcher.Constraint("Equal", 7, 9),
    Sketcher.Constraint("Equal", 11, 13),
    Sketcher.Constraint("Equal", 15, 17),
    Sketcher.Constraint("Equal", 19, 21),
    Sketcher.Constraint("Equal", 2, 4),
    Sketcher.Constraint("DistanceX", 1, 2, 1, 1, Q("10 mm")),
    Sketcher.Constraint("DistanceX", -1, 1, 0, 2, Q("230 mm")),
    Sketcher.Constraint("DistanceY", -1, 1, 0, 2, Q("20 mm")),
    Sketcher.Constraint("DistanceX", -1, 1, 2, 2, Q("180 mm")),
    Sketcher.Constraint("DistanceX", -1, 1, 4, 2, Q("120 mm")),
    Sketcher.Constraint("DistanceX", -1, 1, 8, 2, Q("90 mm")),
    Sketcher.Constraint("DistanceX", -1, 1, 12, 2, Q("310 mm")),
    Sketcher.Constraint("DistanceX", -1, 1, 16, 2, Q("340 mm")),
    Sketcher.Constraint("DistanceX", -1, 1, 20, 2, Q("450 mm")),
])
sketch6.setExpression("Constraints[63]", "Params.sketch6_width")
pad6 = body.newObject("PartDesign::Pad", "Pad005")
pad6.Profile = sketch6
pad6.setExpression("Length", "Params.pad6_length")
pad6.Midplane = True

# Sketch on XY plane
sketch7 = body.newObject("Sketcher::SketchObject", "Sketch006")
sketch7.AttachmentSupport = (doc.getObject("XY_Plane"), [""])
sketch7.MapMode = "FlatFace"
sketch7.AttachmentOffset = App.Placement(V(0, 0, 40), App.Rotation())
sketch7.addGeometry([
    Part.LineSegment(V(190, -20, 0), V(230, 20, 0)),  # 0
    Part.LineSegment(V(230, 20, 0), V(220, 20, 0)),  # 1
    Part.LineSegment(V(220, 20, 0), V(180, -20, 0)),  # 2
    Part.LineSegment(V(180, -20, 0), V(190, -20, 0)),  # 3
    Part.LineSegment(V(160, -20, 0), V(120, 20, 0)),  # 4
    Part.LineSegment(V(120, 20, 0), V(110, 20, 0)),  # 5
    Part.LineSegment(V(110, 20, 0), V(150, -20, 0)),  # 6
    Part.LineSegment(V(150, -20, 0), V(160, -20, 0)),  # 7
    Part.LineSegment(V(50, -20, 0), V(90, 20, 0)),  # 8
    Part.LineSegment(V(90, 20, 0), V(80, 20, 0)),  # 9
    Part.LineSegment(V(80, 20, 0), V(40, -20, 0)),  # 10
    Part.LineSegment(V(40, -20, 0), V(50, -20, 0)),  # 11
    Part.LineSegment(V(270, 20, 0), V(310, -20, 0)),  # 12
    Part.LineSegment(V(310, -20, 0), V(320, -20, 0)),  # 13
    Part.LineSegment(V(320, -20, 0), V(280, 20, 0)),  # 14
    Part.LineSegment(V(280, 20, 0), V(270, 20, 0)),  # 15
    Part.LineSegment(V(380, 20, 0), V(340, -20, 0)),  # 16
    Part.LineSegment(V(340, -20, 0), V(350, -20, 0)),  # 17
    Part.LineSegment(V(350, -20, 0), V(390, 20, 0)),  # 18
    Part.LineSegment(V(390, 20, 0), V(380, 20, 0)),  # 19
    Part.LineSegment(V(410, 20, 0), V(450, -20, 0)),  # 20
    Part.LineSegment(V(450, -20, 0), V(460, -20, 0)),  # 21
    Part.LineSegment(V(460, -20, 0), V(420, 20, 0)),  # 22
    Part.LineSegment(V(420, 20, 0), V(410, 20, 0)),  # 23
], False)
sketch7.addConstraint([
    Sketcher.Constraint("Coincident", 0, 2, 1, 1),
    Sketcher.Constraint("Coincident", 1, 2, 2, 1),
    Sketcher.Constraint("Coincident", 2, 2, 3, 1),
    Sketcher.Constraint("Coincident", 3, 2, 0, 1),
    Sketcher.Constraint("Coincident", 4, 2, 5, 1),
    Sketcher.Constraint("Coincident", 5, 2, 6, 1),
    Sketcher.Constraint("Coincident", 6, 2, 7, 1),
    Sketcher.Constraint("Coincident", 7, 2, 4, 1),
    Sketcher.Constraint("Coincident", 8, 2, 9, 1),
    Sketcher.Constraint("Coincident", 9, 2, 10, 1),
    Sketcher.Constraint("Coincident", 10, 2, 11, 1),
    Sketcher.Constraint("Coincident", 11, 2, 8, 1),
    Sketcher.Constraint("Coincident", 12, 2, 13, 1),
    Sketcher.Constraint("Coincident", 13, 2, 14, 1),
    Sketcher.Constraint("Coincident", 14, 2, 15, 1),
    Sketcher.Constraint("Coincident", 15, 2, 12, 1),
    Sketcher.Constraint("Coincident", 16, 2, 17, 1),
    Sketcher.Constraint("Coincident", 17, 2, 18, 1),
    Sketcher.Constraint("Coincident", 18, 2, 19, 1),
    Sketcher.Constraint("Coincident", 19, 2, 16, 1),
    Sketcher.Constraint("Coincident", 20, 2, 21, 1),
    Sketcher.Constraint("Coincident", 21, 2, 22, 1),
    Sketcher.Constraint("Coincident", 22, 2, 23, 1),
    Sketcher.Constraint("Coincident", 23, 2, 20, 1),
    Sketcher.Constraint("Horizontal", 1),
    Sketcher.Constraint("Horizontal", 3),
    Sketcher.Constraint("Horizontal", 5),
    Sketcher.Constraint("Horizontal", 7),
    Sketcher.Constraint("Horizontal", 9),
    Sketcher.Constraint("Horizontal", 11),
    Sketcher.Constraint("Horizontal", 13),
    Sketcher.Constraint("Horizontal", 15),
    Sketcher.Constraint("Horizontal", 17),
    Sketcher.Constraint("Horizontal", 19),
    Sketcher.Constraint("Horizontal", 21),
    Sketcher.Constraint("Horizontal", 23),
    Sketcher.Constraint("Parallel", 0, 2),
    Sketcher.Constraint("Perpendicular", 2, 4),
    Sketcher.Constraint("Parallel", 4, 6),
    Sketcher.Constraint("Perpendicular", 6, 8),
    Sketcher.Constraint("Parallel", 8, 10),
    Sketcher.Constraint("Perpendicular", 10, 12),
    Sketcher.Constraint("Parallel", 12, 14),
    Sketcher.Constraint("Perpendicular", 14, 16),
    Sketcher.Constraint("Parallel", 16, 18),
    Sketcher.Constraint("Perpendicular", 18, 20),
    Sketcher.Constraint("Parallel", 20, 22),
    Sketcher.Constraint("Horizontal", 1, 2, 4, 2),
    Sketcher.Constraint("Horizontal", 3, 2, 6, 2),
    Sketcher.Constraint("Horizontal", 5, 2, 8, 2),
    Sketcher.Constraint("Horizontal", 7, 2, 10, 2),
    Sketcher.Constraint("Horizontal", 11, 2, 12, 2),
    Sketcher.Constraint("Horizontal", 9, 2, 14, 2),
    Sketcher.Constraint("Horizontal", 13, 2, 16, 2),
    Sketcher.Constraint("Horizontal", 15, 2, 18, 2),
    Sketcher.Constraint("Horizontal", 17, 2, 20, 2),
    Sketcher.Constraint("Horizontal", 19, 2, 22, 2),
    Sketcher.Constraint("Equal", 3, 5),
    Sketcher.Constraint("Equal", 7, 9),
    Sketcher.Constraint("Equal", 11, 13),
    Sketcher.Constraint("Equal", 15, 17),
    Sketcher.Constraint("Equal", 19, 21),
    Sketcher.Constraint("Equal", 2, 4),
    Sketcher.Constraint("DistanceX", 1, 2, 1, 1, Q("10 mm")),
    Sketcher.Constraint("DistanceX", -1, 1, 0, 2, Q("230 mm")),
    Sketcher.Constraint("DistanceY", -1, 1, 0, 2, Q("20 mm")),
    Sketcher.Constraint("DistanceX", -1, 1, 2, 2, Q("180 mm")),
    Sketcher.Constraint("DistanceX", -1, 1, 4, 2, Q("120 mm")),
    Sketcher.Constraint("DistanceX", -1, 1, 8, 2, Q("90 mm")),
    Sketcher.Constraint("DistanceX", -1, 1, 12, 2, Q("310 mm")),
    Sketcher.Constraint("DistanceX", -1, 1, 16, 2, Q("340 mm")),
    Sketcher.Constraint("DistanceX", -1, 1, 20, 2, Q("450 mm")),
])
sketch7.setExpression("Constraints[63]", "Params.sketch7_width")
pad7 = body.newObject("PartDesign::Pad", "Pad006")
pad7.Profile = sketch7
pad7.setExpression("Length", "Params.pad7_length")
pad7.Midplane = True

doc.recompute()
